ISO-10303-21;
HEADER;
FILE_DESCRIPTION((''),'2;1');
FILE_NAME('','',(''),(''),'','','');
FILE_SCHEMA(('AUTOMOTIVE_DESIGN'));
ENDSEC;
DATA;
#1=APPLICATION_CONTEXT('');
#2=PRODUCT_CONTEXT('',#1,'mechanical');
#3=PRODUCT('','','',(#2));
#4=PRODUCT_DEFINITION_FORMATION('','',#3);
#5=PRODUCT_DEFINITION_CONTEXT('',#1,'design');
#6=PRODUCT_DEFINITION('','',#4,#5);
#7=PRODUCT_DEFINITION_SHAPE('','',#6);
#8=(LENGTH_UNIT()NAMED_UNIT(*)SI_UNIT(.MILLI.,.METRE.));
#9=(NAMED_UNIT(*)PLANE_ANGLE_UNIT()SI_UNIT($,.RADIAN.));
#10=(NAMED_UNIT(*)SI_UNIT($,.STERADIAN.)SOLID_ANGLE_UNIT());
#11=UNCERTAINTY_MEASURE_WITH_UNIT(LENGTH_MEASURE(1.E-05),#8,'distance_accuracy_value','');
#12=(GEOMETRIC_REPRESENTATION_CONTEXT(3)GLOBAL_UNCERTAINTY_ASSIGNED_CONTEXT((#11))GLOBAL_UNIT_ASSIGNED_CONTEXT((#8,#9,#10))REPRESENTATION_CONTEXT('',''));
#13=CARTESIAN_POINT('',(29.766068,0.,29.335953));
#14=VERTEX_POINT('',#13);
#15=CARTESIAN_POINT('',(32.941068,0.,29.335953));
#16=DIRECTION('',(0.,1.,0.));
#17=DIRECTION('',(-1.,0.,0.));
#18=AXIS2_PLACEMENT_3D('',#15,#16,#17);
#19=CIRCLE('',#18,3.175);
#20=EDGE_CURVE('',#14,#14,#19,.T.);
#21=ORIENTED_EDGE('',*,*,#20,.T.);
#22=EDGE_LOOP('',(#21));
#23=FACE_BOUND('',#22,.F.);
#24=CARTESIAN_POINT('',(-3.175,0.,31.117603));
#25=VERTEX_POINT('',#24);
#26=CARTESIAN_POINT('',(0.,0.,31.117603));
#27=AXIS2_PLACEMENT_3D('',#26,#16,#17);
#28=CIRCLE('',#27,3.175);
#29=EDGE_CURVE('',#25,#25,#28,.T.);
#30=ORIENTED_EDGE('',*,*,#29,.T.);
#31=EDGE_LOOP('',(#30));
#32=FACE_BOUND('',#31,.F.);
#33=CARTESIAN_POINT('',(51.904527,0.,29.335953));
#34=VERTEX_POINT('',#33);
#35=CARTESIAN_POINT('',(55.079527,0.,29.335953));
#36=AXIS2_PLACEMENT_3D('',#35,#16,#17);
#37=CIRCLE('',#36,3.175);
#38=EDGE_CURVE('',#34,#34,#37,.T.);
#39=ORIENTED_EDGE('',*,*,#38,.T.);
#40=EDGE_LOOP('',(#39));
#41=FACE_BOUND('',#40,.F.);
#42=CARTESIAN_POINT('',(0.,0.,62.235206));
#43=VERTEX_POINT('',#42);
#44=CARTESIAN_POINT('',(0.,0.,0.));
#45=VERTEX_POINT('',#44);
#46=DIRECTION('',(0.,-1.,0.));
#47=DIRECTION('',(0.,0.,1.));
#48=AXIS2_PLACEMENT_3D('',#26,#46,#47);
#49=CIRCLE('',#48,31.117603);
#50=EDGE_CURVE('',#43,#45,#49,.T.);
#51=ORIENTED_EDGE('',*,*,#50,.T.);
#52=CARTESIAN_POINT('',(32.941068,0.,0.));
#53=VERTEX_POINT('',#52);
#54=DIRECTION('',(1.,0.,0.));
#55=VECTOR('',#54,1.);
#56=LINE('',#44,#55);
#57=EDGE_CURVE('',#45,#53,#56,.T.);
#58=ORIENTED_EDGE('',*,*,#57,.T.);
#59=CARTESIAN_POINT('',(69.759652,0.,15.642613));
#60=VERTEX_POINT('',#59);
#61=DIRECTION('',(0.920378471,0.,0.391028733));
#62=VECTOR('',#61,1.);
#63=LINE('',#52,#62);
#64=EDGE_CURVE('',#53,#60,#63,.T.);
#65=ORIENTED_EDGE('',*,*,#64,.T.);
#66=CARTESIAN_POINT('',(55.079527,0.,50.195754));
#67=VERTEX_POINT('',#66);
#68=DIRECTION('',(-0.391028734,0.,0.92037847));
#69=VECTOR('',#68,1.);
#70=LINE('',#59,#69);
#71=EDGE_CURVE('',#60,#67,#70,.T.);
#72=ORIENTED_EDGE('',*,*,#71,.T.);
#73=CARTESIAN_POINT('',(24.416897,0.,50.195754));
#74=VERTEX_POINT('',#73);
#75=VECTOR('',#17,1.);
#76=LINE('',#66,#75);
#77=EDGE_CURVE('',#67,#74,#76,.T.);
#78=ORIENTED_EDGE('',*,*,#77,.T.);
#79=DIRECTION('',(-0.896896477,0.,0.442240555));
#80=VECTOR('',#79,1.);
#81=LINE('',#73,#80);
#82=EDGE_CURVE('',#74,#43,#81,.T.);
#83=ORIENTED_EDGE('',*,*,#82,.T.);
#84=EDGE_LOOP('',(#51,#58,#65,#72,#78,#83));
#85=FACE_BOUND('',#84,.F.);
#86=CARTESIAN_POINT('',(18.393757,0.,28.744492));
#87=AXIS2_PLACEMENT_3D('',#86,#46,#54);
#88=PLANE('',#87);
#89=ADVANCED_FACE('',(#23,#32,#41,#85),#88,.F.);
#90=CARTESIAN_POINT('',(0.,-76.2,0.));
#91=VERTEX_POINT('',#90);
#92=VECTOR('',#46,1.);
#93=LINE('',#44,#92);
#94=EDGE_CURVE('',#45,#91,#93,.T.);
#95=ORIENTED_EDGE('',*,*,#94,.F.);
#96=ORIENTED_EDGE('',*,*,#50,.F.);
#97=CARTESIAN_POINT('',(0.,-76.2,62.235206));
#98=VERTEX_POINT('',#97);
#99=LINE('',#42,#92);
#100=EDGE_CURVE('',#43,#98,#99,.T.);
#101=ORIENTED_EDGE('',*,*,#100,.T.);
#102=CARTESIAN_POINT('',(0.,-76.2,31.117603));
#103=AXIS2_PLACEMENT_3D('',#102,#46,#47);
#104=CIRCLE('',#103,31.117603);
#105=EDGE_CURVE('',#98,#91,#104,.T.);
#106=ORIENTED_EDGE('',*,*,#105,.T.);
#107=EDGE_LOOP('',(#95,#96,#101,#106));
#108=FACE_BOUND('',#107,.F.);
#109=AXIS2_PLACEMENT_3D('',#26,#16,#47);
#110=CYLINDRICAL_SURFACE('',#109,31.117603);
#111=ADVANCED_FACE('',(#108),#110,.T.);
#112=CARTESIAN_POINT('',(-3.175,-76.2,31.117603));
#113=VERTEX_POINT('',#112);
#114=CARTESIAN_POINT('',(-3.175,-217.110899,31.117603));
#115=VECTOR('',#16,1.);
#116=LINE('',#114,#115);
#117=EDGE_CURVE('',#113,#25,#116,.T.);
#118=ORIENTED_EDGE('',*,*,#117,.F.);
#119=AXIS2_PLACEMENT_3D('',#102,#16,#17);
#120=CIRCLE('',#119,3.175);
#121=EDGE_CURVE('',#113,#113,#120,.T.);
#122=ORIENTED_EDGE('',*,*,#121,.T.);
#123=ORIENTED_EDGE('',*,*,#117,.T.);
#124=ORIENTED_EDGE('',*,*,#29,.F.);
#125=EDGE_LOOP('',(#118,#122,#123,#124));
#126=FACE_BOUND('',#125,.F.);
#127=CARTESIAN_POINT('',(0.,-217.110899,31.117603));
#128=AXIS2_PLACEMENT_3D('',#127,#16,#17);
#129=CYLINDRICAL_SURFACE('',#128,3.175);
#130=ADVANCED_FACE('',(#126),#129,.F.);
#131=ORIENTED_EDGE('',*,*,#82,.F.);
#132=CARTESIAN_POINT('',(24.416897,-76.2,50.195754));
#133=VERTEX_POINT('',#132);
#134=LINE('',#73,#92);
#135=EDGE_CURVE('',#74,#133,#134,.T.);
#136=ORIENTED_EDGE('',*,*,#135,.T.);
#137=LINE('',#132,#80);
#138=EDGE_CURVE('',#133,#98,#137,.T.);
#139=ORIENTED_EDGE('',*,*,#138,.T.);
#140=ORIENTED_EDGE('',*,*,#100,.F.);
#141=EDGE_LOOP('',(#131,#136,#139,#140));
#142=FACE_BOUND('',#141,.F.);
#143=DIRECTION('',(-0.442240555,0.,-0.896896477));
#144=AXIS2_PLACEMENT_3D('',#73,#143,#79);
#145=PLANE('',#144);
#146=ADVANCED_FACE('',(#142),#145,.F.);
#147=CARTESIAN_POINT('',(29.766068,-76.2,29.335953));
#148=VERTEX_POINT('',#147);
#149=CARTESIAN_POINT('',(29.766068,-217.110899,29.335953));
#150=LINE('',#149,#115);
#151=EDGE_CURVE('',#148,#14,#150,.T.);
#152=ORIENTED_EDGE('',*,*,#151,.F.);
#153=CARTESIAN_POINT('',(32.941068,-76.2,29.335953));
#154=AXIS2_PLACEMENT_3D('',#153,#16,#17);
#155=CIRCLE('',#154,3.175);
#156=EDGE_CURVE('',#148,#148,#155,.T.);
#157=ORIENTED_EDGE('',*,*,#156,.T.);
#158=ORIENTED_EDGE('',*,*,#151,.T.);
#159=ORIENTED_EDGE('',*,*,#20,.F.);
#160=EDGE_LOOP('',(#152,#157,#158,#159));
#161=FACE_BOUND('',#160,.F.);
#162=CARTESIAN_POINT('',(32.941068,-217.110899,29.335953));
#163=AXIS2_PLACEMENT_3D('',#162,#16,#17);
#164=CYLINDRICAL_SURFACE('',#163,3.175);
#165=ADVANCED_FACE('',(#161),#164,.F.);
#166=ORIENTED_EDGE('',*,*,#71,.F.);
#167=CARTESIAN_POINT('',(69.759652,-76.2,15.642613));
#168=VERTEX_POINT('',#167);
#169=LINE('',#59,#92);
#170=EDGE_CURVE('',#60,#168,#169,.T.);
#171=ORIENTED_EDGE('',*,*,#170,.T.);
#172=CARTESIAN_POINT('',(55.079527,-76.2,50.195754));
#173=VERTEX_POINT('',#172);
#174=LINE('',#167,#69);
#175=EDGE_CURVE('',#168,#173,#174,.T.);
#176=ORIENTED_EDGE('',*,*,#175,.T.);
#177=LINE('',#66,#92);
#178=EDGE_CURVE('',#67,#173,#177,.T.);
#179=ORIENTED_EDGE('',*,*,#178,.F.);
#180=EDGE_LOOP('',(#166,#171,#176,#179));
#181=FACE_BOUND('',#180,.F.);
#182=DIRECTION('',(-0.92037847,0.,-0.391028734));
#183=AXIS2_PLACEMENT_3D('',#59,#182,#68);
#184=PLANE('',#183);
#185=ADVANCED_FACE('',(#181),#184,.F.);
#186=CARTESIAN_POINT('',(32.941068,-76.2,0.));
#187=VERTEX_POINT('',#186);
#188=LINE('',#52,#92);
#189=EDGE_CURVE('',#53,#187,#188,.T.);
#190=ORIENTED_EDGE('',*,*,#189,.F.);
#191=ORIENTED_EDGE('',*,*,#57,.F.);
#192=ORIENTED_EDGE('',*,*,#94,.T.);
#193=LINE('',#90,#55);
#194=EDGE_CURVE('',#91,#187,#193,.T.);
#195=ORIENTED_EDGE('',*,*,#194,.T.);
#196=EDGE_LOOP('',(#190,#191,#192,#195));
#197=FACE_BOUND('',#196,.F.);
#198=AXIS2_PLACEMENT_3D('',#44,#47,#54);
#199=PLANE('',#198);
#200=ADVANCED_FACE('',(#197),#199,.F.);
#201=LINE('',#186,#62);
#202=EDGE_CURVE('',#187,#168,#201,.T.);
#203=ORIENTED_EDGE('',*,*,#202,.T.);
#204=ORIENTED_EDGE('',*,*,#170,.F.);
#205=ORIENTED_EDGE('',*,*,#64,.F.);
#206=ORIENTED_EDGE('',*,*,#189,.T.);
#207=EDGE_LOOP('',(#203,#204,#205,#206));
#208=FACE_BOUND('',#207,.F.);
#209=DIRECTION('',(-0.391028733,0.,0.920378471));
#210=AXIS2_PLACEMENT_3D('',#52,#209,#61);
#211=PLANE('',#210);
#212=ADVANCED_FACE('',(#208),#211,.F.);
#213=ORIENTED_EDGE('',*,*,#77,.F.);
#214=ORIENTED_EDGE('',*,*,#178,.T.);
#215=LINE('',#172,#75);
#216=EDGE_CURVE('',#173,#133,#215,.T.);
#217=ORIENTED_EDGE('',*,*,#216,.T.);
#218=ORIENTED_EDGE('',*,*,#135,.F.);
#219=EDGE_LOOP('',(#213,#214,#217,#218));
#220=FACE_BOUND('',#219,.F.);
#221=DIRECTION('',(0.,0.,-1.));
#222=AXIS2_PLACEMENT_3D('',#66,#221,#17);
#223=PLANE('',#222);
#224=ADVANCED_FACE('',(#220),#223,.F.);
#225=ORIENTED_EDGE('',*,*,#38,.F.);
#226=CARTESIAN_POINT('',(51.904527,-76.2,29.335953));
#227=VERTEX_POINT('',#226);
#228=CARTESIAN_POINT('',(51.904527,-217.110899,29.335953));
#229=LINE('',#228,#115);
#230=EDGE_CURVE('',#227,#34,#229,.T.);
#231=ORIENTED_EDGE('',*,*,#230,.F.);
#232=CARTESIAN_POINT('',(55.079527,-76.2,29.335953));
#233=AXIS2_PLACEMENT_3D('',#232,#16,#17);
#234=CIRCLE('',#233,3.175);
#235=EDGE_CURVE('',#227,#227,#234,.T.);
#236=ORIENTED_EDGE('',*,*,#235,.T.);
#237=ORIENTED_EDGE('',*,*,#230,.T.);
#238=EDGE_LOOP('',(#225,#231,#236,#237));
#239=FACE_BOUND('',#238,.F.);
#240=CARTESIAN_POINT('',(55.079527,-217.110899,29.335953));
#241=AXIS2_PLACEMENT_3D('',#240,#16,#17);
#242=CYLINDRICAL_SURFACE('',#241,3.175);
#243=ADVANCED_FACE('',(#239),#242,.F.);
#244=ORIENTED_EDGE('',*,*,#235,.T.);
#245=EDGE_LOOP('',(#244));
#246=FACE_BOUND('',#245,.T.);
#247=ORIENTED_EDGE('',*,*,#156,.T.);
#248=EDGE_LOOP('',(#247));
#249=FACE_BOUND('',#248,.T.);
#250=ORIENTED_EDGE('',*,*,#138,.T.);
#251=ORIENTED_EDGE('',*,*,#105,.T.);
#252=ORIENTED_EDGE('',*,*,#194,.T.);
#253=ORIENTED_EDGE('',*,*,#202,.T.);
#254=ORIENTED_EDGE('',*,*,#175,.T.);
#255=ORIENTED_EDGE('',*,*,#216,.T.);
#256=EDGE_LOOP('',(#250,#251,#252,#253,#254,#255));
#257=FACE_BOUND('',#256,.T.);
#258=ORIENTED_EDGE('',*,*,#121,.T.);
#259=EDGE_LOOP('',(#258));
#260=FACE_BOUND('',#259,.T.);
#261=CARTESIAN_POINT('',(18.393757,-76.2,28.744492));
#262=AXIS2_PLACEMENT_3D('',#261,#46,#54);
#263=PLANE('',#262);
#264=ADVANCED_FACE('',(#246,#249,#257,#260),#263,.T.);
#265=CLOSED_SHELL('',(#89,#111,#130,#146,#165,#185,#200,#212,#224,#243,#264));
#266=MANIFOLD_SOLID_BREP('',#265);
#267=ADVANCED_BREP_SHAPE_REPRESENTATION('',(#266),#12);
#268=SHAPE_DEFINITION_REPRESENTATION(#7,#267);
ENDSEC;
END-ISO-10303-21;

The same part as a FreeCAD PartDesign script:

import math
import FreeCAD as App
import Part
import Sketcher
from FreeCAD import Vector
Q = App.Units.Quantity

doc = App.newDocument("Part")
body = doc.addObject("PartDesign::Body", "Body")

# Sketch on XZ plane
sketch1 = body.newObject("Sketcher::SketchObject", "Sketch")
sketch1.AttachmentSupport = (doc.getObject("XZ_Plane"), [""])
sketch1.MapMode = "FlatFace"
sketch1.addGeometry([
    Part.LineSegment(Vector(24, 50, 0), Vector(0, 62, 0)),  # 0
    Part.ArcOfCircle(Part.Circle(Vector(0, 31, 0), Vector(0, 0, 1), 31), math.radians(90), math.radians(270)),  # 1
    Part.LineSegment(Vector(0, 0, 0), Vector(33, 0, 0)),  # 2
    Part.LineSegment(Vector(33, 0, 0), Vector(70, 16, 0)),  # 3
    Part.LineSegment(Vector(70, 16, 0), Vector(55, 50, 0)),  # 4
    Part.LineSegment(Vector(55, 50, 0), Vector(24, 50, 0)),  # 5
], False)
sketch1.addConstraint([
    Sketcher.Constraint("Coincident", 0, 2, 1, 1),
    Sketcher.Constraint("Tangent", 1, 2, 2, 1),
    Sketcher.Constraint("Coincident", 2, 2, 3, 1),
    Sketcher.Constraint("Coincident", 3, 2, 4, 1),
    Sketcher.Constraint("Coincident", 4, 2, 5, 1),
    Sketcher.Constraint("Coincident", 5, 2, 0, 1),
    Sketcher.Constraint("Horizontal", 2),
    Sketcher.Constraint("Horizontal", 5),
    Sketcher.Constraint("Coincident", 1, 2, -1, 1),
    Sketcher.Constraint("PointOnObject", 0, 2, -2),
    Sketcher.Constraint("Perpendicular", 3, 4),
    Sketcher.Constraint("Radius", 1, 31.117603),
    Sketcher.Constraint("DistanceX", 5, 2, 5, 1, 30.66263),
    Sketcher.Constraint("DistanceX", 2, 1, 2, 2, 32.941068),
    Sketcher.Constraint("DistanceY", 3, 2, 1, 3, 15.47499),
    Sketcher.Constraint("DistanceY", 3, 2, 4, 2, 34.553141),
    Sketcher.Constraint("DistanceX", 2, 2, 4, 2, 22.138459),
])
pad1 = body.newObject("PartDesign::Pad", "Pad")
pad1.Profile = sketch1
pad1.Length = Q("3 in")

# Sketch on XZ plane
sketch2 = body.newObject("Sketcher::SketchObject", "Sketch001")
sketch2.AttachmentSupport = (doc.getObject("XZ_Plane"), [""])
sketch2.MapMode = "FlatFace"
sketch2.AttachmentOffset = App.Placement(Vector(0, 0, 3 * 25.4), App.Rotation())
sketch2.addGeometry([
    Part.Circle(Vector(32.9, 29.3, 0), Vector(0, 0, 1), 3.2),
    Part.Circle(Vector(55.1, 29.3, 0), Vector(0, 0, 1), 3.2),
    Part.Circle(Vector(0, 31.1, 0), Vector(0, 0, 1), 3.2),
], False)
sketch2.addConstraint([
    Sketcher.Constraint("Equal", 0, 1),
    Sketcher.Constraint("Equal", 1, 2),
    Sketcher.Constraint("PointOnObject", 2, 3, -2),
    Sketcher.Constraint("Horizontal", 0, 3, 1, 3),
    Sketcher.Constraint("Diameter", 0, Q("0.25 in")),
    Sketcher.Constraint("DistanceX", 0, 3, 1, 3, 22.138459),
    Sketcher.Constraint("DistanceY", 0, 3, 2, 3, 1.78165),
    Sketcher.Constraint("DistanceX", -1, 1, 0, 3, 32.941068),
    Sketcher.Constraint("DistanceY", -1, 1, 0, 3, 29.335953),
])
doc.recompute()
hole = body.newObject("PartDesign::Hole", "Hole")
hole.Profile = sketch2
hole.ThreadType = "None"
hole.Diameter = Q("0.25 in")
hole.DepthType = "ThroughAll"

doc.recompute()
